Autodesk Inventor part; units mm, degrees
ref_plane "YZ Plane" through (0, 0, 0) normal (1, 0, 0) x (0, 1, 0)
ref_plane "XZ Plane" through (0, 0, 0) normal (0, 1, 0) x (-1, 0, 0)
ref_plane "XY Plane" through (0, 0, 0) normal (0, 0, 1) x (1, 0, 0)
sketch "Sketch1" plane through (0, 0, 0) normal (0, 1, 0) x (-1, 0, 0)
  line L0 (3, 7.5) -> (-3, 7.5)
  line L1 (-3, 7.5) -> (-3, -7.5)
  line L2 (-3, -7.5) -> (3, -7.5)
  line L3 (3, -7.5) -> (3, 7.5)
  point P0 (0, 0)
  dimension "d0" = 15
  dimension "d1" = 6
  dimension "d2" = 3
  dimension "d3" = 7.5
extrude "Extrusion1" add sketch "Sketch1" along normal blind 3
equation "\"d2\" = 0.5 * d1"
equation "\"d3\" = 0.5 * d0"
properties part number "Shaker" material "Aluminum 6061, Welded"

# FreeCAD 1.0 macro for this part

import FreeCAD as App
import Part
import Sketcher
Q = App.Units.Quantity


def add_polygon(sketch, points):
    """Adds a closed chain of lines whose ends are joined by coincident constraints."""
    first, n = sketch.GeometryCount, len(points)
    for a, b in zip(points, points[1:] + points[:1]):
        sketch.addGeometry(Part.LineSegment(App.Vector(*a, 0), App.Vector(*b, 0)), False)
    for i in range(n):
        sketch.addConstraint(Sketcher.Constraint("Coincident", first + i, 2, first + (i + 1) % n, 1))

doc = App.newDocument("Part")
body = doc.addObject("PartDesign::Body", "Body")

# Sketch on XZ plane
sketch1 = body.newObject("Sketcher::SketchObject", "Sketch")
sketch1.AttachmentSupport = (doc.getObject("XZ_Plane"), [""])
sketch1.MapMode = "FlatFace"
add_polygon(sketch1, [(-3, -7.5), (-3, 7.5), (3, 7.5), (3, -7.5)])  # lines 0-3
sketch1.addConstraint([
    Sketcher.Constraint("Vertical", 0),
    Sketcher.Constraint("Horizontal", 1),
    Sketcher.Constraint("Vertical", 2),
    Sketcher.Constraint("Horizontal", 3),
    Sketcher.Constraint("Symmetric", 0, 2, 2, 2, -1, 1),
    Sketcher.Constraint("DistanceX", 1, 1, 1, 2, Q("6 mm")),
    Sketcher.Constraint("DistanceY", 0, 1, 0, 2, Q("15 mm")),
])
pad1 = body.newObject("PartDesign::Pad", "Pad")
pad1.Profile = sketch1
pad1.Length = 3
pad1.Reversed = True

doc.recompute()
